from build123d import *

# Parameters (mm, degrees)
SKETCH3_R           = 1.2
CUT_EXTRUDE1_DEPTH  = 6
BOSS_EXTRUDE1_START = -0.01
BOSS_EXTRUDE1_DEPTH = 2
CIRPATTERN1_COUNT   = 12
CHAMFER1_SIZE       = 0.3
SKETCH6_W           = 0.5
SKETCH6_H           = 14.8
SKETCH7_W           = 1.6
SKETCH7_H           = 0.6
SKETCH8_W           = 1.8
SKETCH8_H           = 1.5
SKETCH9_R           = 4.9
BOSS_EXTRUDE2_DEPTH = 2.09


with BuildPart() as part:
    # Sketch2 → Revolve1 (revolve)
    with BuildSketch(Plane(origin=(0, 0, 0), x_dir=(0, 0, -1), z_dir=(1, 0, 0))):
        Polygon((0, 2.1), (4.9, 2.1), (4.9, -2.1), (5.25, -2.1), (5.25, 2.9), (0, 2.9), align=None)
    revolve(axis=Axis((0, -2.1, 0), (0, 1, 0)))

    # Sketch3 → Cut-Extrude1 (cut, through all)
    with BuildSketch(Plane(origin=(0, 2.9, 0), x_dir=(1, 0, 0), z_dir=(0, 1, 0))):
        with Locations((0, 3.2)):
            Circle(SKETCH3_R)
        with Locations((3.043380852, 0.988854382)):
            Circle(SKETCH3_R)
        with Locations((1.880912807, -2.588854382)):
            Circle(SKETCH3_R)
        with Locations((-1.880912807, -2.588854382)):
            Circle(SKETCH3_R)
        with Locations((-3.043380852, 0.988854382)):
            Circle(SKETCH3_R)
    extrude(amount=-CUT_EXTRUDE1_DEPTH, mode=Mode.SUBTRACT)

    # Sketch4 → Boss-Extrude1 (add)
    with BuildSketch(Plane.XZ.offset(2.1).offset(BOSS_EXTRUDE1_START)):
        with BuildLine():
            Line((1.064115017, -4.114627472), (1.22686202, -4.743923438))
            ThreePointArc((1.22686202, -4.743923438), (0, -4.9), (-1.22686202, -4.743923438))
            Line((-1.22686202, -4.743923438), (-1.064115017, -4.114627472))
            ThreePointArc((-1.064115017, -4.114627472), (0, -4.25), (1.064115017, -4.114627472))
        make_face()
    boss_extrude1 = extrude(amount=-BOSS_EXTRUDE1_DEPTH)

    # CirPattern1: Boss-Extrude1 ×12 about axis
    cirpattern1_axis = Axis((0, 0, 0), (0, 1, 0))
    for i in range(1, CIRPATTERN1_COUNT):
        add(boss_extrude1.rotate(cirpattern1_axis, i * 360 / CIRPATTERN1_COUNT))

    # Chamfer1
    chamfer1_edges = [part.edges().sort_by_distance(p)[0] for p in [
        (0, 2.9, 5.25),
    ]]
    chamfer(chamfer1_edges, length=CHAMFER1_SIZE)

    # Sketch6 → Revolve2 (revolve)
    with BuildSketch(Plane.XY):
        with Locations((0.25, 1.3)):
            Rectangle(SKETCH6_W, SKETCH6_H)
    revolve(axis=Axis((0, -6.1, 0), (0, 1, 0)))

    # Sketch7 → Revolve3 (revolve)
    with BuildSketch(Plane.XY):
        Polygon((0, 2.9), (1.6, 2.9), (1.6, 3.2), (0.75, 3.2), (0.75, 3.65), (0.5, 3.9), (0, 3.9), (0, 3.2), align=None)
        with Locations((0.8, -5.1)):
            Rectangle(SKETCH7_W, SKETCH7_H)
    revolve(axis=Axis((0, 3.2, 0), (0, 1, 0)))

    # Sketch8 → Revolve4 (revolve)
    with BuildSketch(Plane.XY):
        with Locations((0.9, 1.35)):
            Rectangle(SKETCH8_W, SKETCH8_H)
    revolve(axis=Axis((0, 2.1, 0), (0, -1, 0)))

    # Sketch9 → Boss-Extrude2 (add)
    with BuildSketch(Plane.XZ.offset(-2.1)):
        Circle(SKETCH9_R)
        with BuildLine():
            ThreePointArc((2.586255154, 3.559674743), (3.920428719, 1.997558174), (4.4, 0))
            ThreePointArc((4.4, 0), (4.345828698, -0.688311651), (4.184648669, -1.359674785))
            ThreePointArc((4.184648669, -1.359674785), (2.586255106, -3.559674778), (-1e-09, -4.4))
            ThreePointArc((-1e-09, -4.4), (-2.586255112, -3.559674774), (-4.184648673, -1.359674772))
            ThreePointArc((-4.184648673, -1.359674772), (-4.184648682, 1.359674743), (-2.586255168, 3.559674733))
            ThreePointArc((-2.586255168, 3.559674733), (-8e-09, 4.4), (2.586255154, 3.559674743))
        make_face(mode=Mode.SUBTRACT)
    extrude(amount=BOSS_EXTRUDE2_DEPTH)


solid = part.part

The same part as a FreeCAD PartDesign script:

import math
import FreeCAD as App
import Part
import Sketcher
from FreeCAD import Vector
Q = App.Units.Quantity


def edges_at(feature, points):
    """Names of the edges that pass closest to the given points."""
    edges = feature.Shape.Edges
    near = lambda p: min(range(len(edges)), key=lambda i: edges[i].distToShape(Part.Vertex(*p))[0])
    return sorted({f"Edge{near(p) + 1}" for p in points})

doc = App.newDocument("Part")
body = doc.addObject("PartDesign::Body", "Body")

# Sketch on YZ plane
sketch1 = doc.addObject("Sketcher::SketchObject", "Sketch")
body.addObject(sketch1)
sketch1.AttachmentSupport = (doc.YZ_Plane, [""])
sketch1.MapMode = "FlatFace"
sketch1.addGeometry([
    Part.LineSegment(Vector(2.1, 0, 0), Vector(2.1, -4.9, 0)),  # 0
    Part.LineSegment(Vector(2.1, -4.9, 0), Vector(-2.1, -4.9, 0)),  # 1
    Part.LineSegment(Vector(-2.1, -4.9, 0), Vector(-2.1, -5.25, 0)),  # 2
    Part.LineSegment(Vector(-2.1, -5.25, 0), Vector(2.9, -5.25, 0)),  # 3
    Part.LineSegment(Vector(2.9, -5.25, 0), Vector(2.9, 0, 0)),  # 4
    Part.LineSegment(Vector(2.9, 0, 0), Vector(2.1, 0, 0)),  # 5
], False)
sketch1.addConstraint([
    Sketcher.Constraint("Coincident", 0, 2, 1, 1),
    Sketcher.Constraint("Coincident", 1, 2, 2, 1),
    Sketcher.Constraint("Coincident", 2, 2, 3, 1),
    Sketcher.Constraint("Coincident", 3, 2, 4, 1),
    Sketcher.Constraint("Coincident", 4, 2, 5, 1),
    Sketcher.Constraint("Coincident", 5, 2, 0, 1),
    Sketcher.Constraint("Vertical", 0),
    Sketcher.Constraint("Horizontal", 1),
    Sketcher.Constraint("Vertical", 2),
    Sketcher.Constraint("Horizontal", 3),
    Sketcher.Constraint("Vertical", 4),
    Sketcher.Constraint("Horizontal", 5),
    Sketcher.Constraint("PointOnObject", 4, 2, -1),
    Sketcher.Constraint("DistanceX", 3, 1, 3, 2, 5.0),
    Sketcher.Constraint("DistanceX", 1, 2, 1, 1, 4.2),
    Sketcher.Constraint("DistanceY", 0, 2, 0, 1, 4.9),
    Sketcher.Constraint("DistanceY", 2, 2, 2, 1, 0.35),
    Sketcher.Constraint("DistanceX", -1, 1, 0, 2, 2.1),
])
revolution = doc.addObject("PartDesign::Revolution", "Revolution")
body.addObject(revolution)
revolution.Profile = sketch1
revolution.ReferenceAxis = (sketch1, ["H_Axis"])
revolution.Angle = 360

# Sketch on XZ plane
sketch2 = doc.addObject("Sketcher::SketchObject", "Sketch001")
body.addObject(sketch2)
sketch2.AttachmentSupport = (doc.XZ_Plane, [""])
sketch2.MapMode = "FlatFace"
sketch2.AttachmentOffset = App.Placement(Vector(0, 0, -2.9), App.Rotation())
sketch2.addGeometry([
    Part.Circle(Vector(0, -3.2, 0), Vector(0, 0, 1), 1.2),  # 0
    Part.Circle(Vector(3.043381, -0.988854, 0), Vector(0, 0, 1), 1.2),  # 1
    Part.Circle(Vector(1.880913, 2.588854, 0), Vector(0, 0, 1), 1.2),  # 2
    Part.Circle(Vector(-1.880913, 2.588854, 0), Vector(0, 0, 1), 1.2),  # 3
    Part.Circle(Vector(-3.043381, -0.988854, 0), Vector(0, 0, 1), 1.2),  # 4
], False)
sketch2.addConstraint([
    Sketcher.Constraint("Equal", 0, 1),
    Sketcher.Constraint("Equal", 1, 2),
    Sketcher.Constraint("Equal", 2, 3),
    Sketcher.Constraint("Equal", 3, 4),
    Sketcher.Constraint("Symmetric", 2, 3, 3, 3, -2),
    Sketcher.Constraint("Symmetric", 1, 3, 4, 3, -2),
    Sketcher.Constraint("PointOnObject", 0, 3, -2),
    Sketcher.Constraint("Diameter", 0, 2.4),
    Sketcher.Constraint("DistanceY", 0, 3, -1, 1, 3.2),
    Sketcher.Constraint("DistanceX", -1, 1, 1, 3, 3.043381),
    Sketcher.Constraint("DistanceX", 2, 3, 1, 3, 1.162468),
    Sketcher.Constraint("DistanceY", 1, 3, 2, 3, 3.577709),
    Sketcher.Constraint("DistanceY", 1, 3, -1, 1, 0.988854),
])
pocket1 = doc.addObject("PartDesign::Pocket", "Pocket")
body.addObject(pocket1)
pocket1.Profile = sketch2
pocket1.Type = "ThroughAll"
pocket1.Reversed = True

# Sketch on XZ plane
sketch3 = doc.addObject("Sketcher::SketchObject", "Sketch002")
body.addObject(sketch3)
sketch3.AttachmentSupport = (doc.XZ_Plane, [""])
sketch3.MapMode = "FlatFace"
sketch3.AttachmentOffset = App.Placement(Vector(0, 0, 2.09), App.Rotation())
sketch3.addGeometry([
    Part.LineSegment(Vector(1.226862, -4.743923, 0), Vector(1.064115, -4.114627, 0)),
    Part.ArcOfCircle(Part.Circle(Vector(0, 0, 0), Vector(0, 0, 1), 4.25), math.radians(-104.5), math.radians(-75.5)),
    Part.LineSegment(Vector(-1.064115, -4.114627, 0), Vector(-1.226862, -4.743923, 0)),
    Part.ArcOfCircle(Part.Circle(Vector(0, 0, 0), Vector(0, 0, 1), 4.9), math.radians(-104.5), math.radians(-75.5)),
], False)
sketch3.addConstraint([
    Sketcher.Constraint("Coincident", 0, 2, 1, 2),
    Sketcher.Constraint("Coincident", 1, 1, 2, 1),
    Sketcher.Constraint("Coincident", 2, 2, 3, 1),
    Sketcher.Constraint("Coincident", 3, 2, 0, 1),
    Sketcher.Constraint("Coincident", 1, 3, -1, 1),
    Sketcher.Constraint("Coincident", 3, 3, -1, 1),
    Sketcher.Constraint("Horizontal", 0, 2, 1, 1),
    Sketcher.Constraint("Horizontal", 2, 2, 3, 2),
    Sketcher.Constraint("Radius", 3, 4.9),
    Sketcher.Constraint("Radius", 1, 4.25),
    Sketcher.Constraint("Angle", 0, Q("104.5 deg")),
    Sketcher.Constraint("DistanceX", 1, 1, 0, 2, 2.12823),
])
pad1 = doc.addObject("PartDesign::Pad", "Pad")
body.addObject(pad1)
pad1.Profile = sketch3
pad1.Length = 2
pad1.Reversed = True
doc.recompute()

polarpattern = doc.addObject("PartDesign::PolarPattern", "PolarPattern")
body.addObject(polarpattern)
polarpattern.Originals = [pad1]
polarpattern.Axis = (doc.Y_Axis, [""])
polarpattern.Angle = 360
polarpattern.Occurrences = 12
body.Tip = polarpattern
doc.recompute()

chamfer = doc.addObject("PartDesign::Chamfer", "Chamfer")
body.addObject(chamfer)
chamfer.Base = (polarpattern, edges_at(polarpattern, [(0, 2.9, 5.25)]))
chamfer.Size = 0.3

# Sketch on XY plane
sketch4 = doc.addObject("Sketcher::SketchObject", "Sketch003")
body.addObject(sketch4)
sketch4.AttachmentSupport = (doc.XY_Plane, [""])
sketch4.MapMode = "FlatFace"
sketch4.addGeometry([
    Part.LineSegment(Vector(0, 8.7, 0), Vector(0, -6.1, 0)),
    Part.LineSegment(Vector(0, -6.1, 0), Vector(0.5, -6.1, 0)),
    Part.LineSegment(Vector(0.5, -6.1, 0), Vector(0.5, 8.7, 0)),
    Part.LineSegment(Vector(0.5, 8.7, 0), Vector(0, 8.7, 0)),
], False)
sketch4.addConstraint([
    Sketcher.Constraint("Coincident", 0, 2, 1, 1),
    Sketcher.Constraint("Coincident", 1, 2, 2, 1),
    Sketcher.Constraint("Coincident", 2, 2, 3, 1),
    Sketcher.Constraint("Coincident", 3, 2, 0, 1),
    Sketcher.Constraint("Vertical", 0),
    Sketcher.Constraint("Horizontal", 1),
    Sketcher.Constraint("Vertical", 2),
    Sketcher.Constraint("Horizontal", 3),
    Sketcher.Constraint("PointOnObject", 0, 2, -2),
    Sketcher.Constraint("DistanceX", 1, 1, 1, 2, 0.5),
    Sketcher.Constraint("DistanceY", 0, 2, 0, 1, 14.8),
    Sketcher.Constraint("DistanceY", 0, 2, -1, 1, 6.1),
])
revolution2 = doc.addObject("PartDesign::Revolution", "Revolution001")
body.addObject(revolution2)
revolution2.Profile = sketch4
revolution2.ReferenceAxis = (sketch4, ["V_Axis"])
revolution2.Angle = 360

# Sketch on XY plane
sketch5 = doc.addObject("Sketcher::SketchObject", "Sketch004")
body.addObject(sketch5)
sketch5.AttachmentSupport = (doc.XY_Plane, [""])
sketch5.MapMode = "FlatFace"
sketch5.addGeometry([
    Part.LineSegment(Vector(0, 2.9, 0), Vector(1.6, 2.9, 0)),  # 0
    Part.LineSegment(Vector(1.6, 2.9, 0), Vector(1.6, 3.2, 0)),  # 1
    Part.LineSegment(Vector(1.6, 3.2, 0), Vector(0.75, 3.2, 0)),  # 2
    Part.LineSegment(Vector(0.75, 3.2, 0), Vector(0.75, 3.65, 0)),  # 3
    Part.LineSegment(Vector(0.75, 3.65, 0), Vector(0.5, 3.9, 0)),  # 4
    Part.LineSegment(Vector(0.5, 3.9, 0), Vector(0, 3.9, 0)),  # 5
    Part.LineSegment(Vector(0, 3.9, 0), Vector(0, 2.9, 0)),  # 6
    Part.LineSegment(Vector(0, -4.8, 0), Vector(0, -5.4, 0)),  # 7
    Part.LineSegment(Vector(0, -5.4, 0), Vector(1.6, -5.4, 0)),  # 8
    Part.LineSegment(Vector(1.6, -5.4, 0), Vector(1.6, -4.8, 0)),  # 9
    Part.LineSegment(Vector(1.6, -4.8, 0), Vector(0, -4.8, 0)),  # 10
], False)
sketch5.addConstraint([
    Sketcher.Constraint("Coincident", 0, 2, 1, 1),
    Sketcher.Constraint("Coincident", 1, 2, 2, 1),
    Sketcher.Constraint("Coincident", 2, 2, 3, 1),
    Sketcher.Constraint("Coincident", 3, 2, 4, 1),
    Sketcher.Constraint("Coincident", 4, 2, 5, 1),
    Sketcher.Constraint("Coincident", 5, 2, 6, 1),
    Sketcher.Constraint("Coincident", 6, 2, 0, 1),
    Sketcher.Constraint("Coincident", 7, 2, 8, 1),
    Sketcher.Constraint("Coincident", 8, 2, 9, 1),
    Sketcher.Constraint("Coincident", 9, 2, 10, 1),
    Sketcher.Constraint("Coincident", 10, 2, 7, 1),
    Sketcher.Constraint("Horizontal", 0),
    Sketcher.Constraint("Vertical", 1),
    Sketcher.Constraint("Horizontal", 2),
    Sketcher.Constraint("Vertical", 3),
    Sketcher.Constraint("Horizontal", 5),
    Sketcher.Constraint("Vertical", 6),
    Sketcher.Constraint("Vertical", 7),
    Sketcher.Constraint("Horizontal", 8),
    Sketcher.Constraint("Vertical", 9),
    Sketcher.Constraint("Horizontal", 10),
    Sketcher.Constraint("PointOnObject", 5, 2, -2),
    Sketcher.Constraint("PointOnObject", 7, 2, -2),
    Sketcher.Constraint("Vertical", 1, 2, 8, 2),
    Sketcher.Constraint("DistanceY", 6, 2, 6, 1, 1.0),
    Sketcher.Constraint("Angle", 4, Q("135 deg")),
    Sketcher.Constraint("DistanceX", 0, 1, 0, 2, 1.6),
    Sketcher.Constraint("DistanceX", 5, 2, 5, 1, 0.5),
    Sketcher.Constraint("DistanceY", 1, 1, 1, 2, 0.3),
    Sketcher.Constraint("DistanceY", 7, 2, 7, 1, 0.6),
    Sketcher.Constraint("DistanceY", 9, 2, 1, 2, 8.0),
    Sketcher.Constraint("DistanceX", 2, 2, 2, 1, 0.85),
    Sketcher.Constraint("DistanceY", -1, 1, 0, 2, 2.9),
])
revolution3 = doc.addObject("PartDesign::Revolution", "Revolution002")
body.addObject(revolution3)
revolution3.Profile = sketch5
revolution3.ReferenceAxis = (sketch5, ["V_Axis"])
revolution3.Angle = 360

# Sketch on XY plane
sketch6 = doc.addObject("Sketcher::SketchObject", "Sketch005")
body.addObject(sketch6)
sketch6.AttachmentSupport = (doc.XY_Plane, [""])
sketch6.MapMode = "FlatFace"
sketch6.addGeometry([
    Part.LineSegment(Vector(0, 2.1, 0), Vector(0, 0.6, 0)),
    Part.LineSegment(Vector(0, 0.6, 0), Vector(1.8, 0.6, 0)),
    Part.LineSegment(Vector(1.8, 0.6, 0), Vector(1.8, 2.1, 0)),
    Part.LineSegment(Vector(1.8, 2.1, 0), Vector(0, 2.1, 0)),
], False)
sketch6.addConstraint([
    Sketcher.Constraint("Coincident", 0, 2, 1, 1),
    Sketcher.Constraint("Coincident", 1, 2, 2, 1),
    Sketcher.Constraint("Coincident", 2, 2, 3, 1),
    Sketcher.Constraint("Coincident", 3, 2, 0, 1),
    Sketcher.Constraint("Vertical", 0),
    Sketcher.Constraint("Horizontal", 1),
    Sketcher.Constraint("Vertical", 2),
    Sketcher.Constraint("Horizontal", 3),
    Sketcher.Constraint("PointOnObject", 0, 2, -2),
    Sketcher.Constraint("DistanceX", 1, 1, 1, 2, 1.8),
    Sketcher.Constraint("DistanceY", 0, 2, 0, 1, 1.5),
    Sketcher.Constraint("DistanceY", -1, 1, 0, 2, 0.6),
])
revolution4 = doc.addObject("PartDesign::Revolution", "Revolution003")
body.addObject(revolution4)
revolution4.Profile = sketch6
revolution4.ReferenceAxis = (sketch6, ["V_Axis"])
revolution4.Angle = 360

# Sketch on XZ plane
sketch7 = doc.addObject("Sketcher::SketchObject", "Sketch006")
body.addObject(sketch7)
sketch7.AttachmentSupport = (doc.XZ_Plane, [""])
sketch7.MapMode = "FlatFace"
sketch7.AttachmentOffset = App.Placement(Vector(0, 0, -2.1), App.Rotation())
sketch7.addGeometry([
    Part.Circle(Vector(0, 0, 0), Vector(0, 0, 1), 4.9),  # 0
    Part.ArcOfCircle(Part.Circle(Vector(0, 0, 0), Vector(0, 0, 1), 4.4), math.radians(53.999999), math.radians(126.000001)),  # 1
    Part.ArcOfCircle(Part.Circle(Vector(0, 0, 0), Vector(0, 0, 1), 4.4), math.radians(0), math.radians(53.999999)),  # 2
    Part.ArcOfCircle(Part.Circle(Vector(0, 0, 0), Vector(0, 0, 1), 4.4), math.radians(-18), math.radians(0)),  # 3
    Part.ArcOfCircle(Part.Circle(Vector(0, 0, 0), Vector(0, 0, 1), 4.4), math.radians(-90), math.radians(-18)),  # 4
    Part.ArcOfCircle(Part.Circle(Vector(0, 0, 0), Vector(0, 0, 1), 4.4), math.radians(-162), math.radians(-90)),  # 5
    Part.ArcOfCircle(Part.Circle(Vector(0, 0, 0), Vector(0, 0, 1), 4.4), math.radians(126.000001), math.radians(198)),  # 6
], False)
sketch7.addConstraint([
    Sketcher.Constraint("Tangent", 1, 1, 2, 2),
    Sketcher.Constraint("Tangent", 2, 1, 3, 2),
    Sketcher.Constraint("Tangent", 3, 1, 4, 2),
    Sketcher.Constraint("Tangent", 4, 1, 5, 2),
    Sketcher.Constraint("Tangent", 5, 1, 6, 2),
    Sketcher.Constraint("Tangent", 6, 1, 1, 2),
    Sketcher.Constraint("Coincident", 0, 3, -1, 1),
    Sketcher.Constraint("Coincident", 1, 3, -1, 1),
    Sketcher.Constraint("Coincident", 3, 3, -1, 1),
    Sketcher.Constraint("Equal", 3, 4),
    Sketcher.Constraint("PointOnObject", 2, 1, -1),
    Sketcher.Constraint("PointOnObject", 4, 1, -2),
    Sketcher.Constraint("Horizontal", 3, 1, 5, 1),
    Sketcher.Constraint("Horizontal", 1, 1, 6, 1),
    Sketcher.Constraint("Diameter", 0, 9.8),
    Sketcher.Constraint("Radius", 1, 4.4),
    Sketcher.Constraint("DistanceX", -1, 1, 3, 1, 4.184649),
    Sketcher.Constraint("DistanceX", -1, 1, 1, 1, 2.586255),
])
pad2 = doc.addObject("PartDesign::Pad", "Pad001")
body.addObject(pad2)
pad2.Profile = sketch7
pad2.Length = 2.09

doc.recompute()
